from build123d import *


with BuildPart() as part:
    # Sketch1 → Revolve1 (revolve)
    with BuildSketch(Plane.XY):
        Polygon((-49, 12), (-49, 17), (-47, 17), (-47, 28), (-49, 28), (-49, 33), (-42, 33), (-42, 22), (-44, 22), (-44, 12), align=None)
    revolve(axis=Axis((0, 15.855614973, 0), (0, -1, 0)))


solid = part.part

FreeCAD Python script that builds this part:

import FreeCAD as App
import Part
import Sketcher

V = App.Vector


def add_polygon(sketch, points):
    """Adds a closed chain of lines whose ends are joined by coincident constraints."""
    first, n = sketch.GeometryCount, len(points)
    for a, b in zip(points, points[1:] + points[:1]):
        sketch.addGeometry(Part.LineSegment(App.Vector(*a, 0), App.Vector(*b, 0)), False)
    for i in range(n):
        sketch.addConstraint(Sketcher.Constraint("Coincident", first + i, 2, first + (i + 1) % n, 1))

doc = App.newDocument("Part")
body = doc.addObject("PartDesign::Body", "Body")

# Sketch on XY plane
sketch1 = body.newObject("Sketcher::SketchObject", "Sketch")
sketch1.AttachmentSupport = (doc.getObject("XY_Plane"), [""])
sketch1.MapMode = "FlatFace"
add_polygon(sketch1, [(-49, 17), (-49, 12), (-44, 12), (-44, 22), (-42, 22), (-42, 33), (-49, 33), (-49, 28), (-47, 28), (-47, 17)])  # lines 0-9
sketch1.addConstraint(Sketcher.Constraint("Vertical", 0))
sketch1.addConstraint(Sketcher.Constraint("Horizontal", 1))
sketch1.addConstraint(Sketcher.Constraint("Vertical", 2))
sketch1.addConstraint(Sketcher.Constraint("Horizontal", 3))
sketch1.addConstraint(Sketcher.Constraint("Vertical", 4))
sketch1.addConstraint(Sketcher.Constraint("Horizontal", 5))
sketch1.addConstraint(Sketcher.Constraint("Vertical", 6))
sketch1.addConstraint(Sketcher.Constraint("Horizontal", 7))
sketch1.addConstraint(Sketcher.Constraint("Vertical", 8))
sketch1.addConstraint(Sketcher.Constraint("Horizontal", 9))
sketch1.addConstraint(Sketcher.Constraint("Vertical", 0, 2, 5, 2))
sketch1.addConstraint(Sketcher.Constraint("Equal", 3, 7))
sketch1.addConstraint(Sketcher.Constraint("Equal", 1, 0))
sketch1.addConstraint(Sketcher.Constraint("Equal", 0, 6))
sketch1.addConstraint(Sketcher.Constraint("Equal", 4, 8))
sketch1.addConstraint(Sketcher.Constraint("DistanceX", 1, 1, 1, 2, 5.0))
sketch1.addConstraint(Sketcher.Constraint("DistanceX", 3, 1, 3, 2, 2.0))
sketch1.addConstraint(Sketcher.Constraint("DistanceY", 4, 1, 4, 2, 11.0))
sketch1.addConstraint(Sketcher.Constraint("DistanceX", 0, 2, -1, 1, 49.0))
sketch1.addConstraint(Sketcher.Constraint("DistanceY", -1, 1, 0, 2, 12.0))
revolution = body.newObject("PartDesign::Revolution", "Revolution")
revolution.Profile = sketch1
revolution.ReferenceAxis = (sketch1, ["V_Axis"])
revolution.Angle = 360

doc.recompute()
